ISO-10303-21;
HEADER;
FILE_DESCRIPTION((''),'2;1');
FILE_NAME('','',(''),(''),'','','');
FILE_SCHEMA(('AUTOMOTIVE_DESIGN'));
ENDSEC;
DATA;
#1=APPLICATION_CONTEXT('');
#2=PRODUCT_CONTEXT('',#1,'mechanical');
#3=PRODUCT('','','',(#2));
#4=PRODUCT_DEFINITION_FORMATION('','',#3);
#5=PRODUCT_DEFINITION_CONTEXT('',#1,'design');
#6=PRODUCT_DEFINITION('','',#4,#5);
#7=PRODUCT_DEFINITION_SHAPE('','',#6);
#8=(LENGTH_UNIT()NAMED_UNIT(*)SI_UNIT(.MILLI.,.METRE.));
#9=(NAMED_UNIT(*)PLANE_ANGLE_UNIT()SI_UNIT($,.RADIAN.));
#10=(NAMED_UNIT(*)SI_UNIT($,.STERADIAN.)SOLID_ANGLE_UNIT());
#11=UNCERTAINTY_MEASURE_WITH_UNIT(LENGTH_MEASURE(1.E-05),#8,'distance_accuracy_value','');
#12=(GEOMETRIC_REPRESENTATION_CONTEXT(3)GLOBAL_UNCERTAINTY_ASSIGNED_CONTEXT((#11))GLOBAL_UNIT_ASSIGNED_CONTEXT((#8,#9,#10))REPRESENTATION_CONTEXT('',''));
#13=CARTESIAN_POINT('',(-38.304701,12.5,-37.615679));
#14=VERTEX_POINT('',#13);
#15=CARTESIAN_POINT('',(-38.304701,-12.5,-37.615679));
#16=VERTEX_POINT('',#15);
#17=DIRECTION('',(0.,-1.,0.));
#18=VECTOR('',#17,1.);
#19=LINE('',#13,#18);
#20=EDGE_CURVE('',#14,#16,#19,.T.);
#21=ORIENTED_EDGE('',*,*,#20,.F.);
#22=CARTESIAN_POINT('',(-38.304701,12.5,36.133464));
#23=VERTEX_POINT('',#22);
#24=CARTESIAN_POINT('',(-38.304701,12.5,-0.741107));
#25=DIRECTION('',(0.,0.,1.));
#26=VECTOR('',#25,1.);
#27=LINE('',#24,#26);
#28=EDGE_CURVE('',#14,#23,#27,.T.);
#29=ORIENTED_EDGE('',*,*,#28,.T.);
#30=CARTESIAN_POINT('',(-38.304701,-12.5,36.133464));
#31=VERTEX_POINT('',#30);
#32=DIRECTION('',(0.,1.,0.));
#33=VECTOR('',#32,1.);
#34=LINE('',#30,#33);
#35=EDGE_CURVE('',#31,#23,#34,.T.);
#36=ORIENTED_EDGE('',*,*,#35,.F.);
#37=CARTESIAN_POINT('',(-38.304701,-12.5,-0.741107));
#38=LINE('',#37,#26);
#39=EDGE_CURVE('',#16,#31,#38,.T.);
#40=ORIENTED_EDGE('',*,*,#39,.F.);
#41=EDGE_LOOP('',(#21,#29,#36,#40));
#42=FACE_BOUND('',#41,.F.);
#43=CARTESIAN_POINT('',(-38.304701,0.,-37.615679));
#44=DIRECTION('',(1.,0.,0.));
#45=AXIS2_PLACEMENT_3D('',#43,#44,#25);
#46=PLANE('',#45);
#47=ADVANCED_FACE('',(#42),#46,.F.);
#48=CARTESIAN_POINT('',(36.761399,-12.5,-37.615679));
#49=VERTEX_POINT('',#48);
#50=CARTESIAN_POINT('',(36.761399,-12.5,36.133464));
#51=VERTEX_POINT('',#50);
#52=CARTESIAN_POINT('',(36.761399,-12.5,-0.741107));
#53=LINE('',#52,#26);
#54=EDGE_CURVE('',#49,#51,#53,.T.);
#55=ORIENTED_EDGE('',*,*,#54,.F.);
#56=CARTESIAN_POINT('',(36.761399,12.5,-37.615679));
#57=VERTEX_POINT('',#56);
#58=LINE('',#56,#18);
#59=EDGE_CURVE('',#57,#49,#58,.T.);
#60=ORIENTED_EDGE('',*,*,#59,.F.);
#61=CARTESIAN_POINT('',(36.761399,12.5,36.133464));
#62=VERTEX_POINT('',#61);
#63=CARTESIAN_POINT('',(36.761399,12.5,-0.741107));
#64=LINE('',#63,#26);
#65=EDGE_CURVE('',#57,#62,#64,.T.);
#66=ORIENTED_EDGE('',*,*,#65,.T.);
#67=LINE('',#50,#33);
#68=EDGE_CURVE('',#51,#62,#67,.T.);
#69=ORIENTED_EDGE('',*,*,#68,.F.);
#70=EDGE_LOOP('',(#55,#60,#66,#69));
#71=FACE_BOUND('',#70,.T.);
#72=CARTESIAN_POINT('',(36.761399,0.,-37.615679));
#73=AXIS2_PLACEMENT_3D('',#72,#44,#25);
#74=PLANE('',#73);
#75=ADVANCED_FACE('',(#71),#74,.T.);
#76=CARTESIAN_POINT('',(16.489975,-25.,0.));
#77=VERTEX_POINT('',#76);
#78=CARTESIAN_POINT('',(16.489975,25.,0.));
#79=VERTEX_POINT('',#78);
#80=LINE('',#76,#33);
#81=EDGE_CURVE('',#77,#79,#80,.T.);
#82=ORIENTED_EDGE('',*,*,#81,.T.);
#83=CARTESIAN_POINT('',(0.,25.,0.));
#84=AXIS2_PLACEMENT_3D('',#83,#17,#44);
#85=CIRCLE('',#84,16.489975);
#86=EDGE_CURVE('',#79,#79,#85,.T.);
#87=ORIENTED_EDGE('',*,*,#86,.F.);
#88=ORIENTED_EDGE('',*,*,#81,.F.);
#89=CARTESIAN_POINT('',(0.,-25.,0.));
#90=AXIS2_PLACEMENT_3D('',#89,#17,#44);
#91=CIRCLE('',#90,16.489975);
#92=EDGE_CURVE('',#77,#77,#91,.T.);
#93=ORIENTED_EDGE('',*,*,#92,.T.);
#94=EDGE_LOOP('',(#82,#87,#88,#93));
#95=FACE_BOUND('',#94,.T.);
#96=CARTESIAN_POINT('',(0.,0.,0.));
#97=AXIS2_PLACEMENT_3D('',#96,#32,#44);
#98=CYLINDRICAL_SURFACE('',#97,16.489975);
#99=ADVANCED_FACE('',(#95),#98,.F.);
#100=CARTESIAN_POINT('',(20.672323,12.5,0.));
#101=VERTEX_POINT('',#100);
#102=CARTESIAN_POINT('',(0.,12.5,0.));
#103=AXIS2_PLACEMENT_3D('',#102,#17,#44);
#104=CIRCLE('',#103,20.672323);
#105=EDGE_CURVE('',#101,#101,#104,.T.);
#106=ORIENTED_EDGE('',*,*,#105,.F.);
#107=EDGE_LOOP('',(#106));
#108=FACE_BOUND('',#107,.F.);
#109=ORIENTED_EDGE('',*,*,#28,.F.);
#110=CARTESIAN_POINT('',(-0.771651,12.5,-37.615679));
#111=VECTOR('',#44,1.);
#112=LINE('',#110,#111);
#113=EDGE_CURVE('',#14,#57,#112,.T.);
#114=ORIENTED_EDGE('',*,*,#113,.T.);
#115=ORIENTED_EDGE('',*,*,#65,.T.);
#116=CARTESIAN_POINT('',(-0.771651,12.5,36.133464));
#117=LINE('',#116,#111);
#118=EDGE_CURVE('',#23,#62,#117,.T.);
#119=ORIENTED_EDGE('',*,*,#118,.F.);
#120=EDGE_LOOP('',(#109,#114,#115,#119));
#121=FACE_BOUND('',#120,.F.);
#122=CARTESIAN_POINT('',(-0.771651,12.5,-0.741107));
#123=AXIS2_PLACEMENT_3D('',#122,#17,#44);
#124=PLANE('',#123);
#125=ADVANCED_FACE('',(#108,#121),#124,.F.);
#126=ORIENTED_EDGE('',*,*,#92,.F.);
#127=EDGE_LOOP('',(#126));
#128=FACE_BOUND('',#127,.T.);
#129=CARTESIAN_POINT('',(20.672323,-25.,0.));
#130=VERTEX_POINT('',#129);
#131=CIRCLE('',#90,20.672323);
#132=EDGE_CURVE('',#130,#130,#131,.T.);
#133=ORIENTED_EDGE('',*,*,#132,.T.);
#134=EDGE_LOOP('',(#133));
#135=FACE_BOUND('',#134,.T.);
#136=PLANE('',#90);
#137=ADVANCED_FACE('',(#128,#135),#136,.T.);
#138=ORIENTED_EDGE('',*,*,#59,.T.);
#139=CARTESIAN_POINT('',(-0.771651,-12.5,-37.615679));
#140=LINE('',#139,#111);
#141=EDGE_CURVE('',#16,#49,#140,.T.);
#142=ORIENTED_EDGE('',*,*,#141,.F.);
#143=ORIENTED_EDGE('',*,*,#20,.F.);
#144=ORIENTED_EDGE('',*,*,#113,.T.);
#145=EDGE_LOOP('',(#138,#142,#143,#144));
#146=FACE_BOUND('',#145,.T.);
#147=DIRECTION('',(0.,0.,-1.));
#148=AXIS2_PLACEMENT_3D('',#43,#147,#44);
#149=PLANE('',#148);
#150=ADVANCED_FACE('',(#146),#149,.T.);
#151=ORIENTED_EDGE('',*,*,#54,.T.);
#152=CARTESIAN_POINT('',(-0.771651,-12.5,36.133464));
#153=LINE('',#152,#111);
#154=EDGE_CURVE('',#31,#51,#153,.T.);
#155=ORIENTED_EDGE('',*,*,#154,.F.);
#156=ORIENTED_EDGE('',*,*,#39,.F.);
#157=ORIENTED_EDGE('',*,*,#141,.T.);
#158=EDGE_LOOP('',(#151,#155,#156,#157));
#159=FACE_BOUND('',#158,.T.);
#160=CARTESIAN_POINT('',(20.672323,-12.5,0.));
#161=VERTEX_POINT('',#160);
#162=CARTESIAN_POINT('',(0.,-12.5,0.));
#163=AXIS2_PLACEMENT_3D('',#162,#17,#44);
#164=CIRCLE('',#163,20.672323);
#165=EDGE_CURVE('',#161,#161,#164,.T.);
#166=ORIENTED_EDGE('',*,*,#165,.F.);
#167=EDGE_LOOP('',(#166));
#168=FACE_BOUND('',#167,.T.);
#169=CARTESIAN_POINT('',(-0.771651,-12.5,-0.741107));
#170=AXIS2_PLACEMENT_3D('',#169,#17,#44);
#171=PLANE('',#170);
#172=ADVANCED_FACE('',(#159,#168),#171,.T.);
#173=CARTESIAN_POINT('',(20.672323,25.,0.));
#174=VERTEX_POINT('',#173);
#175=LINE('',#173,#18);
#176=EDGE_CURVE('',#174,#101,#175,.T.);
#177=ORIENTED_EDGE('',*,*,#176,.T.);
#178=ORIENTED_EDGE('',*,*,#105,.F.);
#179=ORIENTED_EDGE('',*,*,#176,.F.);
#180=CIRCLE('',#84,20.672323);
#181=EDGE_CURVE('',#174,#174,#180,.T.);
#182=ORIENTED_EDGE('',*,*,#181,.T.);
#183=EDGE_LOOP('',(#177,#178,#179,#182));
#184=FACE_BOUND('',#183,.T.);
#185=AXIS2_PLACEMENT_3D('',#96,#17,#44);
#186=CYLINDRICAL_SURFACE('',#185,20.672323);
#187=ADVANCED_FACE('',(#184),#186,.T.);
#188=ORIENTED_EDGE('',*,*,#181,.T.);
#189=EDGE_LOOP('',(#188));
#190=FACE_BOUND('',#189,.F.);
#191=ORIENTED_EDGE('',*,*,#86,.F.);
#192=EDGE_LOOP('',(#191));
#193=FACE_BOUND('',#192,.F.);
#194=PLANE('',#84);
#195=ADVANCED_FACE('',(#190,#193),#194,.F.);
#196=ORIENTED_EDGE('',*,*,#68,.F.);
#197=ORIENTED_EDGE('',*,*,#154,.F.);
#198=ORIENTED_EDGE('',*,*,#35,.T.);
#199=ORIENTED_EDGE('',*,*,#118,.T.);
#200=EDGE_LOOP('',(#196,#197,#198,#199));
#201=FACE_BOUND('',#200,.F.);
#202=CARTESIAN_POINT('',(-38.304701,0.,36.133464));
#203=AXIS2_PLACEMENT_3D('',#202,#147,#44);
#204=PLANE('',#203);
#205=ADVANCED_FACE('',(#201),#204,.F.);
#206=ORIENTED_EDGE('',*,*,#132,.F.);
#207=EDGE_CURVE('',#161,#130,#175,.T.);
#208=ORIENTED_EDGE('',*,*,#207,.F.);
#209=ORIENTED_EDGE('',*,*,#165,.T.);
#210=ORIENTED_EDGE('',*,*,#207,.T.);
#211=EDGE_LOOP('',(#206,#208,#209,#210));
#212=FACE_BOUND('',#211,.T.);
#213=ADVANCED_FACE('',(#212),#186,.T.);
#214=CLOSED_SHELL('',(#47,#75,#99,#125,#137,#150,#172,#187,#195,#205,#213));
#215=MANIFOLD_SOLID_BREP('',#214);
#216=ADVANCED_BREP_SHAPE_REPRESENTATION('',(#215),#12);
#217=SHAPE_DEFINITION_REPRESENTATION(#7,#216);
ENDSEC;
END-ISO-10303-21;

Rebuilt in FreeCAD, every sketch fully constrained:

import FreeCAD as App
import Part
import Sketcher

doc = App.newDocument("Part")
params = doc.addObject("Spreadsheet::Sheet", "Params")
for row, (alias, value) in enumerate([
    ("pad1_length", "25 mm"),
    ("pad2_length", "50 mm"),
], start=1):
    params.set(f"A{row}", alias)
    params.set(f"B{row}", "=" + value)
    params.setAlias(f"B{row}", alias)

body = doc.addObject("PartDesign::Body", "Body")

# Sketch on XZ plane
sketch1 = doc.addObject("Sketcher::SketchObject", "Sketch")
body.addObject(sketch1)
sketch1.AttachmentSupport = (doc.XZ_Plane, [""])
sketch1.MapMode = "FlatFace"
sketch1.addGeometry(Part.LineSegment(App.Vector(-38.304701, 36.133464, 0), App.Vector(-38.304701, -37.615679, 0)), False)
sketch1.addGeometry(Part.LineSegment(App.Vector(-38.304701, -37.615679, 0), App.Vector(36.761399, -37.615679, 0)), False)
sketch1.addGeometry(Part.LineSegment(App.Vector(36.761399, -37.615679, 0), App.Vector(36.761399, 36.133464, 0)), False)
sketch1.addGeometry(Part.LineSegment(App.Vector(36.761399, 36.133464, 0), App.Vector(-38.304701, 36.133464, 0)), False)
sketch1.addGeometry(Part.Circle(App.Vector(0, 0, 0), App.Vector(0, 0, 1), 20.558314), False)
sketch1.addConstraint(Sketcher.Constraint("Coincident", 0, 2, 1, 1))
sketch1.addConstraint(Sketcher.Constraint("Coincident", 1, 2, 2, 1))
sketch1.addConstraint(Sketcher.Constraint("Coincident", 2, 2, 3, 1))
sketch1.addConstraint(Sketcher.Constraint("Coincident", 3, 2, 0, 1))
sketch1.addConstraint(Sketcher.Constraint("Vertical", 0))
sketch1.addConstraint(Sketcher.Constraint("Horizontal", 1))
sketch1.addConstraint(Sketcher.Constraint("Vertical", 2))
sketch1.addConstraint(Sketcher.Constraint("Horizontal", 3))
sketch1.addConstraint(Sketcher.Constraint("Coincident", 4, 3, -1, 1))
sketch1.addConstraint(Sketcher.Constraint("Diameter", 4, 41.116627))
sketch1.addConstraint(Sketcher.Constraint("DistanceX", 1, 1, 1, 2, 75.066101))
sketch1.addConstraint(Sketcher.Constraint("DistanceX", 0, 2, -1, 1, 38.304701))
sketch1.addConstraint(Sketcher.Constraint("DistanceY", 0, 2, 0, 1, 73.749144))
sketch1.addConstraint(Sketcher.Constraint("DistanceY", 0, 2, -1, 1, 37.615679))
pad1 = doc.addObject("PartDesign::Pad", "Pad")
body.addObject(pad1)
pad1.Profile = sketch1
pad1.setExpression("Length", "Params.pad1_length")
pad1.Midplane = True

# Sketch on XZ plane
sketch2 = doc.addObject("Sketcher::SketchObject", "Sketch001")
body.addObject(sketch2)
sketch2.AttachmentSupport = (doc.XZ_Plane, [""])
sketch2.MapMode = "FlatFace"
sketch2.addGeometry(Part.Circle(App.Vector(0, 0, 0), App.Vector(0, 0, 1), 20.672323), False)
sketch2.addGeometry(Part.Circle(App.Vector(0, 0, 0), App.Vector(0, 0, 1), 16.489975), False)
sketch2.addConstraint(Sketcher.Constraint("Coincident", 0, 3, -1, 1))
sketch2.addConstraint(Sketcher.Constraint("Coincident", 1, 3, -1, 1))
sketch2.addConstraint(Sketcher.Constraint("Diameter", 1, 32.979949))
sketch2.addConstraint(Sketcher.Constraint("Diameter", 0, 41.344645))
pad2 = doc.addObject("PartDesign::Pad", "Pad001")
body.addObject(pad2)
pad2.Profile = sketch2
pad2.setExpression("Length", "Params.pad2_length")
pad2.Midplane = True

doc.recompute()
